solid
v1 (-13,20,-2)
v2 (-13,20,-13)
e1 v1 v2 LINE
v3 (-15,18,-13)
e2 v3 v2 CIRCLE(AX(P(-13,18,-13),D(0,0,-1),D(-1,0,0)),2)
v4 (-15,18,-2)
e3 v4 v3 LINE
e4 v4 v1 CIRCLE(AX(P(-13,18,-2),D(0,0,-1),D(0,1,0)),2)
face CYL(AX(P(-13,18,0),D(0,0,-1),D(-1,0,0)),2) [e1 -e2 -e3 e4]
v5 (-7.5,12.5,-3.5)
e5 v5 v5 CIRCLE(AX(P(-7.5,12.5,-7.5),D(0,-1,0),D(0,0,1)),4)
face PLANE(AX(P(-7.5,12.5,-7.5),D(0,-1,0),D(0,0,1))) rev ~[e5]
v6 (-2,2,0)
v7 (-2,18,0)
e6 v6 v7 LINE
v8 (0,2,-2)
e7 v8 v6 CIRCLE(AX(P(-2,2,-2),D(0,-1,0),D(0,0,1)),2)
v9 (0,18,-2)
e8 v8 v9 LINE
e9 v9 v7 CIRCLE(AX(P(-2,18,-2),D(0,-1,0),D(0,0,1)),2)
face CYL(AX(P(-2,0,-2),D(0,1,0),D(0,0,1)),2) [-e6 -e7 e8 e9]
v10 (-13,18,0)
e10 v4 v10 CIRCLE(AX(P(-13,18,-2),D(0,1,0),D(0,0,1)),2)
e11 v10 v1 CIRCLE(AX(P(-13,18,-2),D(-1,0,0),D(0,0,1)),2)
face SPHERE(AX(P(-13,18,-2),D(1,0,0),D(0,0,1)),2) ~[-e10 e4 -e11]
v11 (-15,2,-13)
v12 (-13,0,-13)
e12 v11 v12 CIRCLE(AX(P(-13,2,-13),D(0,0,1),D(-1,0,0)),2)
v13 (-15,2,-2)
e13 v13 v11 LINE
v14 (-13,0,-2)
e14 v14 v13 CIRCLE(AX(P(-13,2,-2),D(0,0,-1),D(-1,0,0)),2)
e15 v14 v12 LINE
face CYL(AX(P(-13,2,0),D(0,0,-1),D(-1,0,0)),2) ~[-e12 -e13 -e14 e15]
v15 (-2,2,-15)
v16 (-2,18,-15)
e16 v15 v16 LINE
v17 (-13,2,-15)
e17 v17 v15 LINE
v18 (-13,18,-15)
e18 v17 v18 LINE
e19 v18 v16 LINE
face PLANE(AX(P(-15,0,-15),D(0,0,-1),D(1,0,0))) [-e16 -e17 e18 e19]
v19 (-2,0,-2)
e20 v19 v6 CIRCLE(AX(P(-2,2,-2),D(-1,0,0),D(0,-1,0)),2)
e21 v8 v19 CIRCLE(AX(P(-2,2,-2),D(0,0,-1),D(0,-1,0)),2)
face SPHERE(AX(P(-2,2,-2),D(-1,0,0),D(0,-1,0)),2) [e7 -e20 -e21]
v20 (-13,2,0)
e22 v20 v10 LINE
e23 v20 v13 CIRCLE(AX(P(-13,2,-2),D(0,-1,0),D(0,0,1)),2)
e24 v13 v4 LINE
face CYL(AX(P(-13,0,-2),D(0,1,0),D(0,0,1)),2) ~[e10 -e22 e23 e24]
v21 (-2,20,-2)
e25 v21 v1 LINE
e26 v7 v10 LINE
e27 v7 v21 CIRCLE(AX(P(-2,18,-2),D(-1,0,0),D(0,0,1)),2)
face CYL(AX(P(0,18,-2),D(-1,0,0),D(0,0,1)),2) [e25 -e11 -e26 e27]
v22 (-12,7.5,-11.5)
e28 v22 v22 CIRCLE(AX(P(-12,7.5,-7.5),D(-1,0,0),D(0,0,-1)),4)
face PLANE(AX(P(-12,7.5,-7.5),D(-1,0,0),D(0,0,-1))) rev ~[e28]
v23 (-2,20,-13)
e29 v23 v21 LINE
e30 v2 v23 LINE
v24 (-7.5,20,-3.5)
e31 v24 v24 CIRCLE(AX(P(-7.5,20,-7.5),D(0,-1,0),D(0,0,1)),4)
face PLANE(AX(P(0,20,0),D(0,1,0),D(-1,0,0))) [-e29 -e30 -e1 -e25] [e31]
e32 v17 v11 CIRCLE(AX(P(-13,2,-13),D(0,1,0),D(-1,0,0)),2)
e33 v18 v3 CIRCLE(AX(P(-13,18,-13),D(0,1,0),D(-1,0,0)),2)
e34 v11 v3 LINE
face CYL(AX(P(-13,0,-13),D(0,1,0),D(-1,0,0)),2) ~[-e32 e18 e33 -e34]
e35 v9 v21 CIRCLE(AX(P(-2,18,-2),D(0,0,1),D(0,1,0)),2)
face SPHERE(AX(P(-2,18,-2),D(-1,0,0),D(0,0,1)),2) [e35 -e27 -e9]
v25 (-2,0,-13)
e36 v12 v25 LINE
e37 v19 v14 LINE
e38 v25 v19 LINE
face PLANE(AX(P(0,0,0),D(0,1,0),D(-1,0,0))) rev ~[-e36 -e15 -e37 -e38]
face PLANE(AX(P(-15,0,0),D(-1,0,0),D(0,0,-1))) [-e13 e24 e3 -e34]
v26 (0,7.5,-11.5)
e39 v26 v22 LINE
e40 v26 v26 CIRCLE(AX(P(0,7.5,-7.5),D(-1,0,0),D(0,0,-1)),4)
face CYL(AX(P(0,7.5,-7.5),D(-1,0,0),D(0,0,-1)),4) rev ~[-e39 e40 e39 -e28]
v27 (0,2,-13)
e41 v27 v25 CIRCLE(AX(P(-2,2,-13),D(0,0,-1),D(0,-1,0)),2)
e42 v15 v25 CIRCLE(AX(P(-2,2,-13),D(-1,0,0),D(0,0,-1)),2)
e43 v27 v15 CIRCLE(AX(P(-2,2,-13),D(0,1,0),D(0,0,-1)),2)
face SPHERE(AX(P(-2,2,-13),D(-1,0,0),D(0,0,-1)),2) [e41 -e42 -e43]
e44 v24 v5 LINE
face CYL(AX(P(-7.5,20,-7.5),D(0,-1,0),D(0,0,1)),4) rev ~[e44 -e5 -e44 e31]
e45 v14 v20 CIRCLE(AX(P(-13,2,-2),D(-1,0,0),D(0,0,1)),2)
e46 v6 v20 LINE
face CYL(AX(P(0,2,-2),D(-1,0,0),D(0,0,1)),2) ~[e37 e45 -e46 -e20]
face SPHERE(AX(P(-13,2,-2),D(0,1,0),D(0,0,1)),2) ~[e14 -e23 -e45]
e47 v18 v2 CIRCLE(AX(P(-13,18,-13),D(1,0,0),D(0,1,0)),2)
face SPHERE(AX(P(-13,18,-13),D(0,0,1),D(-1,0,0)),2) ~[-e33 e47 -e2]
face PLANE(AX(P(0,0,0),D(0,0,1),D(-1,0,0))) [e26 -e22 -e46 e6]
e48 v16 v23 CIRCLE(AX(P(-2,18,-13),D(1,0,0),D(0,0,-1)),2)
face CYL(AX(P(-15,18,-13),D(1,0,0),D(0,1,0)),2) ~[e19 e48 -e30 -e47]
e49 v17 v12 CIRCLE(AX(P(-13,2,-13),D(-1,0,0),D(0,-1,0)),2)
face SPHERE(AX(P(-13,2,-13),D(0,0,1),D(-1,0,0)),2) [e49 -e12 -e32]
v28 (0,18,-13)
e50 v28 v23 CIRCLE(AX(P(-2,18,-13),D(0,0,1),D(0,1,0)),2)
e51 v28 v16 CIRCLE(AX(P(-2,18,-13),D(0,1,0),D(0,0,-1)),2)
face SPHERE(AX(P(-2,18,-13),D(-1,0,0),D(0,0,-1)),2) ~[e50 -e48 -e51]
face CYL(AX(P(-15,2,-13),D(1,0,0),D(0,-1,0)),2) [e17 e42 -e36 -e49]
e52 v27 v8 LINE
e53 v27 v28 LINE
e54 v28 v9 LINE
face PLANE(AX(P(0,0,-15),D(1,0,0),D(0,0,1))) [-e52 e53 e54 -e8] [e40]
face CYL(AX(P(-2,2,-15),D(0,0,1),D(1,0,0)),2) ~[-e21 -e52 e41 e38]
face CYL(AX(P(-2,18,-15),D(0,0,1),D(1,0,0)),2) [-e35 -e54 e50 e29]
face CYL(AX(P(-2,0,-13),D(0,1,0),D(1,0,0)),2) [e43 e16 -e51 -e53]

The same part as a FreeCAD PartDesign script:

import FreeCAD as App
import Part
import Sketcher

V = App.Vector
Q = App.Units.Quantity


def edges_at(feature, points):
    """Names of the edges that pass closest to the given points."""
    edges = feature.Shape.Edges
    near = lambda p: min(range(len(edges)), key=lambda i: edges[i].distToShape(Part.Vertex(*p))[0])
    return sorted({f"Edge{near(p) + 1}" for p in points})

doc = App.newDocument("Part")
body = doc.addObject("PartDesign::Body", "Body")

sketch1 = body.newObject("Sketcher::SketchObject", "Sketch")
sketch1.AttachmentSupport = (doc.getObject("XZ_Plane"), [""])
sketch1.MapMode = "FlatFace"
sketch1.addGeometry(Part.LineSegment(V(-15, 0, 0), V(0, 0, 0)), False)
sketch1.addGeometry(Part.LineSegment(V(0, 0, 0), V(0, -15, 0)), False)
sketch1.addGeometry(Part.LineSegment(V(0, -15, 0), V(-15, -15, 0)), False)
sketch1.addGeometry(Part.LineSegment(V(-15, -15, 0), V(-15, 0, 0)), False)
sketch1.addConstraint(Sketcher.Constraint("Coincident", 0, 2, 1, 1))
sketch1.addConstraint(Sketcher.Constraint("Coincident", 1, 2, 2, 1))
sketch1.addConstraint(Sketcher.Constraint("Coincident", 2, 2, 3, 1))
sketch1.addConstraint(Sketcher.Constraint("Coincident", 3, 2, 0, 1))
sketch1.addConstraint(Sketcher.Constraint("Horizontal", 0))
sketch1.addConstraint(Sketcher.Constraint("Vertical", 1))
sketch1.addConstraint(Sketcher.Constraint("Horizontal", 2))
sketch1.addConstraint(Sketcher.Constraint("Vertical", 3))
sketch1.addConstraint(Sketcher.Constraint("Coincident", 0, 2, -1, 1))
sketch1.addConstraint(Sketcher.Constraint("Equal", 2, 1))
sketch1.addConstraint(Sketcher.Constraint("DistanceX", 0, 1, 0, 2, Q("15 mm")))
pad1 = body.newObject("PartDesign::Pad", "Pad")
pad1.Profile = sketch1
pad1.Length = 20
pad1.Reversed = True

sketch2 = body.newObject("Sketcher::SketchObject", "Sketch001")
sketch2.AttachmentSupport = (doc.getObject("YZ_Plane"), [""])
sketch2.MapMode = "FlatFace"
sketch2.addGeometry(Part.Circle(V(7.5, -7.5, 0), V(0, 0, 1), 4), False)
sketch2.addConstraint(Sketcher.Constraint("Diameter", 0, Q("8 mm")))
sketch2.addConstraint(Sketcher.Constraint("DistanceX", -1, 1, 0, 3, Q("7.5 mm")))
sketch2.addConstraint(Sketcher.Constraint("DistanceY", 0, 3, -1, 1, Q("7.5 mm")))
doc.recompute()
hole = body.newObject("PartDesign::Hole", "Hole")
hole.Profile = sketch2
hole.ThreadType = "None"
hole.Diameter = 8
hole.DepthType = "Dimension"
hole.Depth = 12
hole.DrillPoint = "Flat"

sketch3 = body.newObject("Sketcher::SketchObject", "Sketch002")
sketch3.AttachmentSupport = (doc.getObject("XZ_Plane"), [""])
sketch3.MapMode = "FlatFace"
sketch3.AttachmentOffset = App.Placement(V(0, 0, -20), App.Rotation())
sketch3.addGeometry(Part.Circle(V(-7.5, -7.5, 0), V(0, 0, 1), 4), False)
sketch3.addConstraint(Sketcher.Constraint("Diameter", 0, Q("8 mm")))
sketch3.addConstraint(Sketcher.Constraint("DistanceX", 0, 3, -1, 1, Q("7.5 mm")))
sketch3.addConstraint(Sketcher.Constraint("DistanceY", 0, 3, -1, 1, Q("7.5 mm")))
doc.recompute()
hole2 = body.newObject("PartDesign::Hole", "Hole001")
hole2.Profile = sketch3
hole2.ThreadType = "None"
hole2.Diameter = 8
hole2.DepthType = "Dimension"
hole2.Depth = 7.5
hole2.DrillPoint = "Flat"
hole2.Reversed = True
doc.recompute()

fillet = body.newObject("PartDesign::Fillet", "Fillet")
fillet.Base = (hole2, edges_at(hole2, [
    (-7.5, 20, 0),
    (-15, 10, 0),
    (-15, 20, -7.5),
    (-7.5, 0, 0),
    (-15, 0, -7.5),
    (-15, 10, -15),
    (-7.5, 0, -15),
    (-7.5, 20, -15),
    (0, 10, -15),
    (0, 0, -7.5),
    (0, 10, 0),
    (0, 20, -7.5),
]))
fillet.Radius = 2

doc.recompute()
